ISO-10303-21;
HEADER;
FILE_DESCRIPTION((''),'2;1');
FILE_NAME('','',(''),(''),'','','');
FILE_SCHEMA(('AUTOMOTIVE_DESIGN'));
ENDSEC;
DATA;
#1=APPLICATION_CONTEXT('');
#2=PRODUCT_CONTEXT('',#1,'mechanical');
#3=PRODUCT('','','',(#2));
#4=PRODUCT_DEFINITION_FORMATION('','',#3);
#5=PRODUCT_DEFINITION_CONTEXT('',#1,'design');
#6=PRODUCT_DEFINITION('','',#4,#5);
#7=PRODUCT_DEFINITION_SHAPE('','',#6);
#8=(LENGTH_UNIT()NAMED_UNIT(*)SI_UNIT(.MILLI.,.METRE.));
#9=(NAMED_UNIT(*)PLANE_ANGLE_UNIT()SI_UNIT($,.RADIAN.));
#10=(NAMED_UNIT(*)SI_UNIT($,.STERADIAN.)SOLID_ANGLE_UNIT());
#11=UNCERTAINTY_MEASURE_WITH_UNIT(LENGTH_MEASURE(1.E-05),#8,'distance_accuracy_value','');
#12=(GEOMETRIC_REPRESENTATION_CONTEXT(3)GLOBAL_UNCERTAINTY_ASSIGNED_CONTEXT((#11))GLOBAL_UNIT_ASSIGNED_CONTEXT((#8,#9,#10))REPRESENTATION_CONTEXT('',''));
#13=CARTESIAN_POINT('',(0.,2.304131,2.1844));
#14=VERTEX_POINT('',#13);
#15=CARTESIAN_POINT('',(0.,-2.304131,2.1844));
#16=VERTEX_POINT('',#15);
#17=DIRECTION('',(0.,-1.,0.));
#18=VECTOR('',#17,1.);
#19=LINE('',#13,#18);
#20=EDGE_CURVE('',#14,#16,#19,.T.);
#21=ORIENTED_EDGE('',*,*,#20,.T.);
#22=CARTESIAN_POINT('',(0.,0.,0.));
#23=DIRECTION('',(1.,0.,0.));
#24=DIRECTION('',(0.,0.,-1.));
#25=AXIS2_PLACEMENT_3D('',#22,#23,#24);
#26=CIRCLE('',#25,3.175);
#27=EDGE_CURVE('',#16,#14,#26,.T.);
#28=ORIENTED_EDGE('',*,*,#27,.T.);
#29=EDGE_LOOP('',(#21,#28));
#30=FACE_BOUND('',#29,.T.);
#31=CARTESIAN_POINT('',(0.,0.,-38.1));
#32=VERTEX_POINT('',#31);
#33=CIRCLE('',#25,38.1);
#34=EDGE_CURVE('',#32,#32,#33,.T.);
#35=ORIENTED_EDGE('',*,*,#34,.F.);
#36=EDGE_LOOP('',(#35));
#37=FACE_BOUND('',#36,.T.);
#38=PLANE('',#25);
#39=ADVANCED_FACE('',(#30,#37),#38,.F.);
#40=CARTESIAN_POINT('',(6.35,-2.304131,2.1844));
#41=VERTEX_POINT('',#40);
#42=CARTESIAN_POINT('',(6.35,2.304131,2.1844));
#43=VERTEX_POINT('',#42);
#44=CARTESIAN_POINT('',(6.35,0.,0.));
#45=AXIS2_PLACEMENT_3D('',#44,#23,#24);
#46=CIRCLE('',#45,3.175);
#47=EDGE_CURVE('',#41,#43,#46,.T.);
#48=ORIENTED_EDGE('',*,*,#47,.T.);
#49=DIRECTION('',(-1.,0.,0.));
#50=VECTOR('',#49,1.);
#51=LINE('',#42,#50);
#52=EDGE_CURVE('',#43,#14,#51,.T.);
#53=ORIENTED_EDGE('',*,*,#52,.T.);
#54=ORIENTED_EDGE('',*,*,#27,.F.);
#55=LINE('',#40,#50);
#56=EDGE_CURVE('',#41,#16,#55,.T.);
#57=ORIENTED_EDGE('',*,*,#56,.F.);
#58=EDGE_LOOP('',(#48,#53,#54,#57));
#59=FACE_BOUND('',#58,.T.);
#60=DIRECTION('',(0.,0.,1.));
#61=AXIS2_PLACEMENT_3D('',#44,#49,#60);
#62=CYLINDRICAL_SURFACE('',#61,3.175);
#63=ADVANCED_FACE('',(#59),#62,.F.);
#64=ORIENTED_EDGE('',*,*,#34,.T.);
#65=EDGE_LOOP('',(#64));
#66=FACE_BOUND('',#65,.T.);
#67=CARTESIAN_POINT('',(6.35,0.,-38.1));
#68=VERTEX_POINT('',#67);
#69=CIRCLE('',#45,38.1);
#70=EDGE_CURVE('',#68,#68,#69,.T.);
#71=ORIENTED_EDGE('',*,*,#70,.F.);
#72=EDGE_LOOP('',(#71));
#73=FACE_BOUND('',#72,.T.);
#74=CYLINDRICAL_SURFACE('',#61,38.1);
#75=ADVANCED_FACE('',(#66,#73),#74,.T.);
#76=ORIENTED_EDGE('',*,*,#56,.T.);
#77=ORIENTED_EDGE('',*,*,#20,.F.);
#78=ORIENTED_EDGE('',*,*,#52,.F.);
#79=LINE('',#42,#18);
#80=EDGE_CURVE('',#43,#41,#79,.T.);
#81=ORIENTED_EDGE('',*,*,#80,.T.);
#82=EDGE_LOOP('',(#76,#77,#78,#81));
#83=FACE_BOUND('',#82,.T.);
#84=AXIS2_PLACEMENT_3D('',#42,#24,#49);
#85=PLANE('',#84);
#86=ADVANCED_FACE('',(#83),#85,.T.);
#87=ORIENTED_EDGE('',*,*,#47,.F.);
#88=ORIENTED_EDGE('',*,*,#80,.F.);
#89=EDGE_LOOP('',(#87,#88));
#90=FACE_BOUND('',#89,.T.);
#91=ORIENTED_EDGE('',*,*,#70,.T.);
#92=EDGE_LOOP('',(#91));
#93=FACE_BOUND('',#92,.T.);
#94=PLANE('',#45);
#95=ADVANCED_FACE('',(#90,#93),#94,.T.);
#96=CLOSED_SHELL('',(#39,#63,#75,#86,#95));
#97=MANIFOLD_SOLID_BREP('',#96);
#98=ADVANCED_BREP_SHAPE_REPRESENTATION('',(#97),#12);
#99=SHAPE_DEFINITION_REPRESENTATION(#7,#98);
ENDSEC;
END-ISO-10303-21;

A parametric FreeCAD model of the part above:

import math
import FreeCAD as App
import Part
import Sketcher
from FreeCAD import Vector
Q = App.Units.Quantity

doc = App.newDocument("Part")
params = doc.addObject("Spreadsheet::Sheet", "Params")
for row, (alias, value) in enumerate([
    ("sketch1_diameter", "3 in"),
    ("sketch1_radius", "0.125 in"),
    ("pad1_length", "0.25 in"),
], start=1):
    params.set(f"A{row}", alias)
    params.set(f"B{row}", "=" + value)
    params.setAlias(f"B{row}", alias)

body = doc.addObject("PartDesign::Body", "Body")

sketch1 = body.newObject("Sketcher::SketchObject", "Sketch")
sketch1.AttachmentSupport = (doc.getObject("YZ_Plane"), [""])
sketch1.MapMode = "FlatFace"
sketch1.addGeometry(Part.Circle(Vector(0, 0, 0), Vector(0, 0, 1), 38.1), False)
sketch1.addGeometry(Part.LineSegment(Vector(-2.304131, 2.1844, 0), Vector(2.304131, 2.1844, 0)), False)
sketch1.addGeometry(Part.ArcOfCircle(Part.Circle(Vector(0, 0, 0), Vector(0, 0, 1), 3.175), math.radians(136.528001), math.radians(403.471999)), False)
sketch1.addConstraint(Sketcher.Constraint("Coincident", 1, 1, 2, 1))
sketch1.addConstraint(Sketcher.Constraint("Coincident", 2, 2, 1, 2))
sketch1.addConstraint(Sketcher.Constraint("Horizontal", 1))
sketch1.addConstraint(Sketcher.Constraint("Coincident", 0, 3, -1, 1))
sketch1.addConstraint(Sketcher.Constraint("Coincident", 2, 3, -1, 1))
sketch1.addConstraint(Sketcher.Constraint("Diameter", 0, Q("3 in")))
sketch1.addConstraint(Sketcher.Constraint("Radius", 2, Q("0.125 in")))
sketch1.addConstraint(Sketcher.Constraint("DistanceY", -1, 1, 1, 1, Q("0.086 in")))
sketch1.setExpression("Constraints[5]", "Params.sketch1_diameter")
sketch1.setExpression("Constraints[6]", "Params.sketch1_radius")
pad1 = body.newObject("PartDesign::Pad", "Pad")
pad1.Profile = sketch1
pad1.setExpression("Length", "Params.pad1_length")

doc.recompute()
